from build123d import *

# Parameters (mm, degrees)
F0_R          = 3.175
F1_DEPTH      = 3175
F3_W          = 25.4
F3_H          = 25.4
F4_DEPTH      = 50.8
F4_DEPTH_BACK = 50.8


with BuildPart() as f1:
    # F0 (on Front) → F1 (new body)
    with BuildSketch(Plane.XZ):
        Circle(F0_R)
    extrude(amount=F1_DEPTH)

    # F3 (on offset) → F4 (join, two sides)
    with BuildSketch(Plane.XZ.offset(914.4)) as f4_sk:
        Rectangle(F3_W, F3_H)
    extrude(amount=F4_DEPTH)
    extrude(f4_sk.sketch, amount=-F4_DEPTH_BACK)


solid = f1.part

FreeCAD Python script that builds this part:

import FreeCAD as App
import Part
import Sketcher
from FreeCAD import Vector
Q = App.Units.Quantity

doc = App.newDocument("Part")
body = doc.addObject("PartDesign::Body", "Body")

sketch1 = doc.addObject("Sketcher::SketchObject", "Sketch")
body.addObject(sketch1)
sketch1.AttachmentSupport = (doc.XZ_Plane, [""])
sketch1.MapMode = "FlatFace"
sketch1.addGeometry(Part.Circle(Vector(0, 0, 0), Vector(0, 0, 1), 3.2), False)
sketch1.addConstraint([
    Sketcher.Constraint("Coincident", 0, 3, -1, 1),
    Sketcher.Constraint("Diameter", 0, Q("0.25 in")),
])
pad1 = doc.addObject("PartDesign::Pad", "Pad")
body.addObject(pad1)
pad1.Profile = sketch1
pad1.Length = Q("125 in")

sketch2 = doc.addObject("Sketcher::SketchObject", "Sketch001")
body.addObject(sketch2)
sketch2.AttachmentSupport = (doc.XZ_Plane, [""])
sketch2.MapMode = "FlatFace"
sketch2.AttachmentOffset = App.Placement(Vector(0, 0, 36 * 25.4), App.Rotation())
sketch2.addGeometry([
    Part.LineSegment(Vector(-13, 13, 0), Vector(-13, -13, 0)),
    Part.LineSegment(Vector(-13, -13, 0), Vector(13, -13, 0)),
    Part.LineSegment(Vector(13, -13, 0), Vector(13, 13, 0)),
    Part.LineSegment(Vector(13, 13, 0), Vector(-13, 13, 0)),
], False)
sketch2.addConstraint([
    Sketcher.Constraint("Coincident", 0, 2, 1, 1),
    Sketcher.Constraint("Coincident", 1, 2, 2, 1),
    Sketcher.Constraint("Coincident", 2, 2, 3, 1),
    Sketcher.Constraint("Coincident", 3, 2, 0, 1),
    Sketcher.Constraint("Vertical", 0),
    Sketcher.Constraint("Horizontal", 1),
    Sketcher.Constraint("Vertical", 2),
    Sketcher.Constraint("Horizontal", 3),
    Sketcher.Constraint("Symmetric", 0, 2, 2, 2, -1, 1),
    Sketcher.Constraint("Equal", 3, 0),
    Sketcher.Constraint("DistanceX", 1, 1, 1, 2, Q("1 in")),
])
pad2 = doc.addObject("PartDesign::Pad", "Pad001")
body.addObject(pad2)
pad2.Profile = sketch2
pad2.Type = "TwoLengths"
pad2.Length = Q("2 in")
pad2.Length2 = Q("2 in")

doc.recompute()
